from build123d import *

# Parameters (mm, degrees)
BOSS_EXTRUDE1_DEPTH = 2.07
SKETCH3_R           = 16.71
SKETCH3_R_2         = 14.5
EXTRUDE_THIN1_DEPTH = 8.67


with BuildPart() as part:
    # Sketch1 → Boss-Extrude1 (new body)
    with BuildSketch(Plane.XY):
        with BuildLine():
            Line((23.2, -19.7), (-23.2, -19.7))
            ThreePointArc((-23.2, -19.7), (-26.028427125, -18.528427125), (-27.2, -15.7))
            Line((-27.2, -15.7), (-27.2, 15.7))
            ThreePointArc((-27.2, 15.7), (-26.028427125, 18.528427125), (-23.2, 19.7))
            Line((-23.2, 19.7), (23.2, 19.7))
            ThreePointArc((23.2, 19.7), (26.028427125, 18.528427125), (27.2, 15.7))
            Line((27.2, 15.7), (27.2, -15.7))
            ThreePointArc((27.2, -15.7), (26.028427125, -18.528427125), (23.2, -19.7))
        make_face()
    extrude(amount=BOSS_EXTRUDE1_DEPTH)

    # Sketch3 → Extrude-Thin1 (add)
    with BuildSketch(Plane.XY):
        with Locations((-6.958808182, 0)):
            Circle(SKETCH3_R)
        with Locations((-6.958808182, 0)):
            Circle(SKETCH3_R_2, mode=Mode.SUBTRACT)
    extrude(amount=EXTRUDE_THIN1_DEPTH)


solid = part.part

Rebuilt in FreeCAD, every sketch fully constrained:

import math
import FreeCAD as App
import Part
import Sketcher

doc = App.newDocument("Part")
body = doc.addObject("PartDesign::Body", "Body")

# Sketch on XY plane
sketch1 = body.newObject("Sketcher::SketchObject", "Sketch")
sketch1.AttachmentSupport = (doc.getObject("XY_Plane"), [""])
sketch1.MapMode = "FlatFace"
sketch1.addGeometry(Part.LineSegment(App.Vector(-23.2, -19.7, 0), App.Vector(23.2, -19.7, 0)), False)
sketch1.addGeometry(Part.ArcOfCircle(Part.Circle(App.Vector(23.2, -15.7, 0), App.Vector(0, 0, 1), 4), math.radians(-90), math.radians(0)), False)
sketch1.addGeometry(Part.LineSegment(App.Vector(27.2, -15.7, 0), App.Vector(27.2, 15.7, 0)), False)
sketch1.addGeometry(Part.ArcOfCircle(Part.Circle(App.Vector(23.2, 15.7, 0), App.Vector(0, 0, 1), 4), math.radians(0), math.radians(90)), False)
sketch1.addGeometry(Part.LineSegment(App.Vector(23.2, 19.7, 0), App.Vector(-23.2, 19.7, 0)), False)
sketch1.addGeometry(Part.ArcOfCircle(Part.Circle(App.Vector(-23.2, 15.7, 0), App.Vector(0, 0, 1), 4), math.radians(90), math.radians(180)), False)
sketch1.addGeometry(Part.LineSegment(App.Vector(-27.2, 15.7, 0), App.Vector(-27.2, -15.7, 0)), False)
sketch1.addGeometry(Part.ArcOfCircle(Part.Circle(App.Vector(-23.2, -15.7, 0), App.Vector(0, 0, 1), 4), math.radians(180), math.radians(270)), False)
sketch1.addConstraint(Sketcher.Constraint("Tangent", 0, 2, 1, 1))
sketch1.addConstraint(Sketcher.Constraint("Tangent", 1, 2, 2, 1))
sketch1.addConstraint(Sketcher.Constraint("Tangent", 2, 2, 3, 1))
sketch1.addConstraint(Sketcher.Constraint("Tangent", 3, 2, 4, 1))
sketch1.addConstraint(Sketcher.Constraint("Tangent", 4, 2, 5, 1))
sketch1.addConstraint(Sketcher.Constraint("Tangent", 5, 2, 6, 1))
sketch1.addConstraint(Sketcher.Constraint("Tangent", 6, 2, 7, 1))
sketch1.addConstraint(Sketcher.Constraint("Tangent", 7, 2, 0, 1))
sketch1.addConstraint(Sketcher.Constraint("Horizontal", 0))
sketch1.addConstraint(Sketcher.Constraint("Vertical", 2))
sketch1.addConstraint(Sketcher.Constraint("Horizontal", 4))
sketch1.addConstraint(Sketcher.Constraint("Vertical", 6))
sketch1.addConstraint(Sketcher.Constraint("Equal", 1, 3))
sketch1.addConstraint(Sketcher.Constraint("Equal", 3, 5))
sketch1.addConstraint(Sketcher.Constraint("Equal", 5, 7))
sketch1.addConstraint(Sketcher.Constraint("Symmetric", 1, 3, 5, 3, -1, 1))
sketch1.addConstraint(Sketcher.Constraint("Radius", 1, 4.0))
sketch1.addConstraint(Sketcher.Constraint("DistanceX", 0, 1, 0, 2, 46.4))
sketch1.addConstraint(Sketcher.Constraint("DistanceY", 2, 1, 2, 2, 31.4))
pad1 = body.newObject("PartDesign::Pad", "Pad")
pad1.Profile = sketch1
pad1.Length = 2.07

# Sketch on XY plane
sketch2 = body.newObject("Sketcher::SketchObject", "Sketch001")
sketch2.AttachmentSupport = (doc.getObject("XY_Plane"), [""])
sketch2.MapMode = "FlatFace"
sketch2.addGeometry(Part.Circle(App.Vector(-6.958808, 0, 0), App.Vector(0, 0, 1), 16.71), False)
sketch2.addGeometry(Part.Circle(App.Vector(-6.958808, 0, 0), App.Vector(0, 0, 1), 14.5), False)
sketch2.addConstraint(Sketcher.Constraint("Coincident", 1, 3, 0, 3))
sketch2.addConstraint(Sketcher.Constraint("PointOnObject", 0, 3, -1))
sketch2.addConstraint(Sketcher.Constraint("Diameter", 1, 29.0))
sketch2.addConstraint(Sketcher.Constraint("Diameter", 0, 33.42))
sketch2.addConstraint(Sketcher.Constraint("DistanceX", 0, 3, -1, 1, 6.958808))
pad2 = body.newObject("PartDesign::Pad", "Pad001")
pad2.Profile = sketch2
pad2.Length = 8.67

doc.recompute()
